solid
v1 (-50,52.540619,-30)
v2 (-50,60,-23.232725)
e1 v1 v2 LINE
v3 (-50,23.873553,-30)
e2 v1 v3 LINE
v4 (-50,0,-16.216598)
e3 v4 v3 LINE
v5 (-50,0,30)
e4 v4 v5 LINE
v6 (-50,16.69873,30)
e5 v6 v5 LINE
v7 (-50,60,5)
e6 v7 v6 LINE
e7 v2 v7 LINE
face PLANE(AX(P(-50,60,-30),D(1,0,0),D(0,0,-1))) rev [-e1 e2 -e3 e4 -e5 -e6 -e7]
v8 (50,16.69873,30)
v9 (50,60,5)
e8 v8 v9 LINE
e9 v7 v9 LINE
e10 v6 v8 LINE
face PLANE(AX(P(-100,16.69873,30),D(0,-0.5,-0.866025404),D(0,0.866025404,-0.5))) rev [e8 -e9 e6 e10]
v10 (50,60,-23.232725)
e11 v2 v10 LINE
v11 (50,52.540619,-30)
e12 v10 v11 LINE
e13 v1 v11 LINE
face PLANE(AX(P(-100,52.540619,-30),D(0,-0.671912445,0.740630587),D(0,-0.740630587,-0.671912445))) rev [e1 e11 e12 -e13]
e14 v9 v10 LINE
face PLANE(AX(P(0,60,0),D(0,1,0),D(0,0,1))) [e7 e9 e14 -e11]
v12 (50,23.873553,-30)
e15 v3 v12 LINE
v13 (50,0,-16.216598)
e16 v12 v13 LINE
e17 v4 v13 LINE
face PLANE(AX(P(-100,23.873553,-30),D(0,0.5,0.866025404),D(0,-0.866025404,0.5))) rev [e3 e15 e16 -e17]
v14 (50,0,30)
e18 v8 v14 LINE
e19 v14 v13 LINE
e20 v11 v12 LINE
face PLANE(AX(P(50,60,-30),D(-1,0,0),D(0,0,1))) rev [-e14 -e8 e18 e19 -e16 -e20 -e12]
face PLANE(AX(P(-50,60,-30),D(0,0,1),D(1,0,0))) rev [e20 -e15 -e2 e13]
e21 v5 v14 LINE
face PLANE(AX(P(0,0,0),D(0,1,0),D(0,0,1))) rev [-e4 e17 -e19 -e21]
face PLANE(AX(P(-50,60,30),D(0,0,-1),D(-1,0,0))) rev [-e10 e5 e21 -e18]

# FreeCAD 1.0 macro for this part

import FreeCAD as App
import Part
import Sketcher

V = App.Vector
Q = App.Units.Quantity

doc = App.newDocument("Part")
body = doc.addObject("PartDesign::Body", "Body")

# Sketch on XZ plane
sketch1 = doc.addObject("Sketcher::SketchObject", "Sketch")
body.addObject(sketch1)
sketch1.AttachmentSupport = (doc.XZ_Plane, [""])
sketch1.MapMode = "FlatFace"
sketch1.addGeometry(Part.LineSegment(V(-50, -30, 0), V(-50, 30, 0)), False)
sketch1.addGeometry(Part.LineSegment(V(-50, 30, 0), V(50, 30, 0)), False)
sketch1.addGeometry(Part.LineSegment(V(50, 30, 0), V(50, -30, 0)), False)
sketch1.addGeometry(Part.LineSegment(V(50, -30, 0), V(-50, -30, 0)), False)
sketch1.addConstraint(Sketcher.Constraint("Coincident", 0, 2, 1, 1))
sketch1.addConstraint(Sketcher.Constraint("Coincident", 1, 2, 2, 1))
sketch1.addConstraint(Sketcher.Constraint("Coincident", 2, 2, 3, 1))
sketch1.addConstraint(Sketcher.Constraint("Coincident", 3, 2, 0, 1))
sketch1.addConstraint(Sketcher.Constraint("Vertical", 0))
sketch1.addConstraint(Sketcher.Constraint("Horizontal", 1))
sketch1.addConstraint(Sketcher.Constraint("Vertical", 2))
sketch1.addConstraint(Sketcher.Constraint("Horizontal", 3))
sketch1.addConstraint(Sketcher.Constraint("Symmetric", 0, 2, 2, 2, -1, 1))
sketch1.addConstraint(Sketcher.Constraint("DistanceX", 1, 1, 1, 2, 100.0))
sketch1.addConstraint(Sketcher.Constraint("DistanceY", 0, 1, 0, 2, 60.0))
pad1 = doc.addObject("PartDesign::Pad", "Pad")
body.addObject(pad1)
pad1.Profile = sketch1
pad1.Length = 60
pad1.Reversed = True

# Sketch on YZ plane
sketch2 = doc.addObject("Sketcher::SketchObject", "Sketch001")
body.addObject(sketch2)
sketch2.AttachmentSupport = (doc.YZ_Plane, [""])
sketch2.MapMode = "FlatFace"
sketch2.AttachmentOffset = App.Placement(V(0, 0, 50), App.Rotation())
sketch2.addGeometry(Part.LineSegment(V(60, 30, 0), V(17, 30, 0)), False)
sketch2.addGeometry(Part.LineSegment(V(17, 30, 0), V(60, 5, 0)), False)
sketch2.addGeometry(Part.LineSegment(V(60, 5, 0), V(60, 30, 0)), False)
sketch2.addGeometry(Part.LineSegment(V(0, -30, 0), V(24, -30, 0)), False)
sketch2.addGeometry(Part.LineSegment(V(24, -30, 0), V(0, -16, 0)), False)
sketch2.addGeometry(Part.LineSegment(V(0, -16, 0), V(0, -30, 0)), False)
sketch2.addGeometry(Part.LineSegment(V(60, -30, 0), V(60, -23, 0)), False)
sketch2.addGeometry(Part.LineSegment(V(60, -23, 0), V(53, -30, 0)), False)
sketch2.addGeometry(Part.LineSegment(V(53, -30, 0), V(60, -30, 0)), False)
sketch2.addConstraint(Sketcher.Constraint("Coincident", 0, 2, 1, 1))
sketch2.addConstraint(Sketcher.Constraint("Coincident", 1, 2, 2, 1))
sketch2.addConstraint(Sketcher.Constraint("Coincident", 2, 2, 0, 1))
sketch2.addConstraint(Sketcher.Constraint("Coincident", 3, 2, 4, 1))
sketch2.addConstraint(Sketcher.Constraint("Coincident", 4, 2, 5, 1))
sketch2.addConstraint(Sketcher.Constraint("Coincident", 5, 2, 3, 1))
sketch2.addConstraint(Sketcher.Constraint("Coincident", 6, 2, 7, 1))
sketch2.addConstraint(Sketcher.Constraint("Coincident", 7, 2, 8, 1))
sketch2.addConstraint(Sketcher.Constraint("Coincident", 8, 2, 6, 1))
sketch2.addConstraint(Sketcher.Constraint("Horizontal", 0))
sketch2.addConstraint(Sketcher.Constraint("Vertical", 2))
sketch2.addConstraint(Sketcher.Constraint("Horizontal", 3))
sketch2.addConstraint(Sketcher.Constraint("Vertical", 5))
sketch2.addConstraint(Sketcher.Constraint("Vertical", 6))
sketch2.addConstraint(Sketcher.Constraint("Horizontal", 8))
sketch2.addConstraint(Sketcher.Constraint("Symmetric", 2, 2, 8, 2, -1))
sketch2.addConstraint(Sketcher.Constraint("PointOnObject", 4, 2, -2))
sketch2.addConstraint(Sketcher.Constraint("Parallel", 1, 4))
sketch2.addConstraint(Sketcher.Constraint("Horizontal", 5, 2, 7, 2))
sketch2.addConstraint(Sketcher.Constraint("DistanceY", 2, 1, 2, 2, 25.0))
sketch2.addConstraint(Sketcher.Constraint("Angle", 1, Q("-30 deg")))
sketch2.addConstraint(Sketcher.Constraint("DistanceY", -1, 1, 0, 2, 30.0))
sketch2.addConstraint(Sketcher.Constraint("DistanceX", -1, 1, 1, 2, 60.0))
sketch2.addConstraint(Sketcher.Constraint("DistanceX", 8, 1, 8, 2, 7.459381))
sketch2.addConstraint(Sketcher.Constraint("DistanceX", 3, 1, 3, 2, 23.873553))
sketch2.addConstraint(Sketcher.Constraint("DistanceY", 6, 1, 6, 2, 6.767275))
pocket1 = doc.addObject("PartDesign::Pocket", "Pocket")
body.addObject(pocket1)
pocket1.Profile = sketch2
pocket1.Length = 100

doc.recompute()
